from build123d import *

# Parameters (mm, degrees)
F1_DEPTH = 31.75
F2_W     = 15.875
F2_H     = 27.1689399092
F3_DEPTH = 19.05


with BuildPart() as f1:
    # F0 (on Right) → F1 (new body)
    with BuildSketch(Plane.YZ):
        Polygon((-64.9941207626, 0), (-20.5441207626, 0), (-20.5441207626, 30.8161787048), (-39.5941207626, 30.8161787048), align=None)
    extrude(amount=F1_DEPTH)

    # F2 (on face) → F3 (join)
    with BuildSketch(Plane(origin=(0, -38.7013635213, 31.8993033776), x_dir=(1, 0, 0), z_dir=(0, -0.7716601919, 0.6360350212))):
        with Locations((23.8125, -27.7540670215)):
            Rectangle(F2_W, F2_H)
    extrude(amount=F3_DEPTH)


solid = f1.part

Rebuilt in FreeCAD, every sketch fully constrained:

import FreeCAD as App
import Part
import Sketcher

V = App.Vector
Q = App.Units.Quantity


def add_polygon(sketch, points):
    """Adds a closed chain of lines whose ends are joined by coincident constraints."""
    first, n = sketch.GeometryCount, len(points)
    for a, b in zip(points, points[1:] + points[:1]):
        sketch.addGeometry(Part.LineSegment(App.Vector(*a, 0), App.Vector(*b, 0)), False)
    for i in range(n):
        sketch.addConstraint(Sketcher.Constraint("Coincident", first + i, 2, first + (i + 1) % n, 1))

doc = App.newDocument("Part")
params = doc.addObject("Spreadsheet::Sheet", "Params")
for row, (alias, value) in enumerate([
    ("sketch1_width", "1.75 in"),
    ("pad1_length", "1.25 in"),
    ("sketch2_width", "0.625 in"),
    ("pad2_length", "0.75 in"),
], start=1):
    params.set(f"A{row}", alias)
    params.set(f"B{row}", "=" + value)
    params.setAlias(f"B{row}", alias)

body = doc.addObject("PartDesign::Body", "Body")

# Sketch on YZ plane
sketch1 = body.newObject("Sketcher::SketchObject", "Sketch")
sketch1.AttachmentSupport = (doc.getObject("YZ_Plane"), [""])
sketch1.MapMode = "FlatFace"
add_polygon(sketch1, [(-64.994121, 0), (-20.544121, 0), (-20.544121, 30.816179), (-39.594121, 30.816179)])  # lines 0-3
sketch1.addConstraint(Sketcher.Constraint("Horizontal", 0))
sketch1.addConstraint(Sketcher.Constraint("Vertical", 1))
sketch1.addConstraint(Sketcher.Constraint("Horizontal", 2))
sketch1.addConstraint(Sketcher.Constraint("PointOnObject", 0, 2, -1))
sketch1.addConstraint(Sketcher.Constraint("DistanceX", 3, 2, 2, 2, Q("1 in")))
sketch1.addConstraint(Sketcher.Constraint("DistanceX", 0, 1, 0, 2, Q("1.75 in")))
sketch1.addConstraint(Sketcher.Constraint("DistanceY", 1, 1, 1, 2, 30.816179))
sketch1.addConstraint(Sketcher.Constraint("DistanceX", 0, 2, -1, 1, 20.544121))
sketch1.setExpression("Constraints[9]", "Params.sketch1_width")
pad1 = body.newObject("PartDesign::Pad", "Pad")
pad1.Profile = sketch1
pad1.setExpression("Length", "Params.pad1_length")

# Sketch on an angled plane
sketch2 = body.newObject("Sketcher::SketchObject", "Sketch001")
sketch2.Placement = App.Placement(V(0, -38.701364, 31.899303), App.Rotation(V(1, 0, 0), V(0, 0.636035021, 0.771660192), V(0, -0.771660192, 0.636035021), "ZXY"))
add_polygon(sketch2, [(15.875, -14.169597), (15.875, -41.338537), (31.75, -41.338537), (31.75, -14.169597)])  # lines 0-3
sketch2.addConstraint(Sketcher.Constraint("Vertical", 0))
sketch2.addConstraint(Sketcher.Constraint("Horizontal", 1))
sketch2.addConstraint(Sketcher.Constraint("Vertical", 2))
sketch2.addConstraint(Sketcher.Constraint("Horizontal", 3))
sketch2.addConstraint(Sketcher.Constraint("DistanceX", 1, 1, 1, 2, Q("0.625 in")))
sketch2.addConstraint(Sketcher.Constraint("DistanceX", -1, 1, 1, 2, Q("1.25 in")))
sketch2.addConstraint(Sketcher.Constraint("DistanceY", 0, 2, 0, 1, 27.16894))
sketch2.addConstraint(Sketcher.Constraint("DistanceY", 0, 2, -1, 1, 41.338537))
sketch2.setExpression("Constraints[8]", "Params.sketch2_width")
pad2 = body.newObject("PartDesign::Pad", "Pad001")
pad2.Profile = sketch2
pad2.setExpression("Length", "Params.pad2_length")

doc.recompute()
